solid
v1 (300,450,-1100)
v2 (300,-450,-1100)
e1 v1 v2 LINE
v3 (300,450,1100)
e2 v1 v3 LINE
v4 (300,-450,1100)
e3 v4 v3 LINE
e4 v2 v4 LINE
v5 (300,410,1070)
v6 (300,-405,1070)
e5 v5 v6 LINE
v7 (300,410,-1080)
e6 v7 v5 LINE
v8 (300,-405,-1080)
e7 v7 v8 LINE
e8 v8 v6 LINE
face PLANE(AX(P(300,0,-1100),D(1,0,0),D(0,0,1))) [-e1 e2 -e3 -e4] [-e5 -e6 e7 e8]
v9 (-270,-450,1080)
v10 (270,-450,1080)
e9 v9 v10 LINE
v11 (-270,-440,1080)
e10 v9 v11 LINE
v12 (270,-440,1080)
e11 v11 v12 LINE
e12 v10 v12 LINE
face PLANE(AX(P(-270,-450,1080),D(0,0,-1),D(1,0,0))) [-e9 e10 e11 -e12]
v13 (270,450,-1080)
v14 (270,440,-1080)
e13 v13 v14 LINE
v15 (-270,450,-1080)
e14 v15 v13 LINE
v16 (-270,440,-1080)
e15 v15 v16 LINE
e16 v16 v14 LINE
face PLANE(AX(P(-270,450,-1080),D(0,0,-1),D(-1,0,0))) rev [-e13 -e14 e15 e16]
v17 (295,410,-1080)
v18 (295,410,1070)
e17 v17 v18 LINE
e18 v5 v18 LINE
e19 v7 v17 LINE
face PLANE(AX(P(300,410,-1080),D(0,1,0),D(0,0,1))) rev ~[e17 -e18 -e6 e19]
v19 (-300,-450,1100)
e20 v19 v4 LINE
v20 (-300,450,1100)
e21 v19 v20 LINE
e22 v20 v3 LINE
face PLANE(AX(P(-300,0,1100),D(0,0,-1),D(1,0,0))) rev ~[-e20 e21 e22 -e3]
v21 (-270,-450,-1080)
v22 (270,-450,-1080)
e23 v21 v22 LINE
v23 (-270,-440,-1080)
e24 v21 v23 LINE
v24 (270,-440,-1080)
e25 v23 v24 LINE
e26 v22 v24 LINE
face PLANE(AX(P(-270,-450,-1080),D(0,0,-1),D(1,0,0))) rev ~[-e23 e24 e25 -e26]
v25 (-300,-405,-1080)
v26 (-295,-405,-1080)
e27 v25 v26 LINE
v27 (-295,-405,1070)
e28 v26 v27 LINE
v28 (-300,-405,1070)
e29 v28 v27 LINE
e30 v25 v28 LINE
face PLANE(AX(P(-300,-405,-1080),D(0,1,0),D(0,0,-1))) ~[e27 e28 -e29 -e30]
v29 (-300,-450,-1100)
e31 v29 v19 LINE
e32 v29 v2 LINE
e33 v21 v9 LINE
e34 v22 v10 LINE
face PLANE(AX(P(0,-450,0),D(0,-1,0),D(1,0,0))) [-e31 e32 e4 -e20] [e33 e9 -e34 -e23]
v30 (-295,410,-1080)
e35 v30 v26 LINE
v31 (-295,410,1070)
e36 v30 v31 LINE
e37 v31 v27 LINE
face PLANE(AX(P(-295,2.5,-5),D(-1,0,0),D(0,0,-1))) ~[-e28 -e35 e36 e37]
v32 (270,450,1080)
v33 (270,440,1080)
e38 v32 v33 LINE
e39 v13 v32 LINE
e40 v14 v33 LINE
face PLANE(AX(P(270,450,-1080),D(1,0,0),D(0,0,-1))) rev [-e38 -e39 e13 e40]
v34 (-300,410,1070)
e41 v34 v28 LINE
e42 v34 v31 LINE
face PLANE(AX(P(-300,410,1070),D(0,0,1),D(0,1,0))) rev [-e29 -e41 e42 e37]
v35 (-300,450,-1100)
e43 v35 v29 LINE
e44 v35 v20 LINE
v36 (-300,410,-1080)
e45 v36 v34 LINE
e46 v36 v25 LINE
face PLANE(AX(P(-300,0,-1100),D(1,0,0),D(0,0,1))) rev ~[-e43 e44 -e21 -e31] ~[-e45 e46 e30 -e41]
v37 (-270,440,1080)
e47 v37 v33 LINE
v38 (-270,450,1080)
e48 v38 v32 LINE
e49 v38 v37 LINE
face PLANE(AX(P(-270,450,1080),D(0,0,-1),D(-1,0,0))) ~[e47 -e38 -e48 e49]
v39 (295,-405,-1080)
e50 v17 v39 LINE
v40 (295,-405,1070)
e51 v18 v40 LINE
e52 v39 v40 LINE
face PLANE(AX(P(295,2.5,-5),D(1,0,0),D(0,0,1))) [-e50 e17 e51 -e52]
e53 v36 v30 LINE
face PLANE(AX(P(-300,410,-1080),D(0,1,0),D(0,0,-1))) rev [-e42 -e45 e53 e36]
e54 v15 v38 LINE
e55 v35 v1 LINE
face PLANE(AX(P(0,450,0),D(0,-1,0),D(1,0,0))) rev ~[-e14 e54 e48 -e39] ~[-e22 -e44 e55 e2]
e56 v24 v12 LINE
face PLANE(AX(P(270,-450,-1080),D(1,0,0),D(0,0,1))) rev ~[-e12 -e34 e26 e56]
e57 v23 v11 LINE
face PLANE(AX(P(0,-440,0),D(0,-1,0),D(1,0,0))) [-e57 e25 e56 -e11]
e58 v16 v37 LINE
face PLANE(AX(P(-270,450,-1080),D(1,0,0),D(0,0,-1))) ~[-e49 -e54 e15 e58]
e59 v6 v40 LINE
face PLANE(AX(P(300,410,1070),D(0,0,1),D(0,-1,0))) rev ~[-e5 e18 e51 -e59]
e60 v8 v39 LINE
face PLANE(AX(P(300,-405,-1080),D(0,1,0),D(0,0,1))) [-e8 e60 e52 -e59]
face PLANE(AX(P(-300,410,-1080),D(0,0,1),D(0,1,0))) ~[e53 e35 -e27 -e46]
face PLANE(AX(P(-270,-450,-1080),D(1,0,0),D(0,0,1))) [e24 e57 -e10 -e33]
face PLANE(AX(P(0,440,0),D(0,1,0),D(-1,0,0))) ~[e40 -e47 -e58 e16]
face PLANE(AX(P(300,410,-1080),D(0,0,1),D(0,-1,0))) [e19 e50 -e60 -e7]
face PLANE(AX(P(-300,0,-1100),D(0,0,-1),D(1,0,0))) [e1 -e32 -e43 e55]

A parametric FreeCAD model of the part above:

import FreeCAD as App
import Part
import Sketcher
from FreeCAD import Vector

doc = App.newDocument("Part")
body = doc.addObject("PartDesign::Body", "Body")

sketch1 = body.newObject("Sketcher::SketchObject", "Sketch")
sketch1.AttachmentSupport = (doc.getObject("XZ_Plane"), [""])
sketch1.MapMode = "FlatFace"
sketch1.addGeometry(Part.LineSegment(Vector(-300, 1100, 0), Vector(-300, -1100, 0)), False)
sketch1.addGeometry(Part.LineSegment(Vector(-300, -1100, 0), Vector(300, -1100, 0)), False)
sketch1.addGeometry(Part.LineSegment(Vector(300, -1100, 0), Vector(300, 1100, 0)), False)
sketch1.addGeometry(Part.LineSegment(Vector(300, 1100, 0), Vector(-300, 1100, 0)), False)
sketch1.addConstraint(Sketcher.Constraint("Coincident", 0, 2, 1, 1))
sketch1.addConstraint(Sketcher.Constraint("Coincident", 1, 2, 2, 1))
sketch1.addConstraint(Sketcher.Constraint("Coincident", 2, 2, 3, 1))
sketch1.addConstraint(Sketcher.Constraint("Coincident", 3, 2, 0, 1))
sketch1.addConstraint(Sketcher.Constraint("Vertical", 0))
sketch1.addConstraint(Sketcher.Constraint("Horizontal", 1))
sketch1.addConstraint(Sketcher.Constraint("Vertical", 2))
sketch1.addConstraint(Sketcher.Constraint("Horizontal", 3))
sketch1.addConstraint(Sketcher.Constraint("Symmetric", 0, 2, 2, 2, -1, 1))
sketch1.addConstraint(Sketcher.Constraint("DistanceX", 1, 1, 1, 2, 600.0))
sketch1.addConstraint(Sketcher.Constraint("DistanceY", 0, 2, 0, 1, 2200.0))
pad1 = body.newObject("PartDesign::Pad", "Pad")
pad1.Profile = sketch1
pad1.Length = 900
pad1.Midplane = True

sketch2 = body.newObject("Sketcher::SketchObject", "Sketch001")
sketch2.AttachmentSupport = (doc.getObject("XZ_Plane"), [""])
sketch2.MapMode = "FlatFace"
sketch2.AttachmentOffset = App.Placement(Vector(0, 0, 450), App.Rotation())
sketch2.addGeometry(Part.LineSegment(Vector(-270, 1080, 0), Vector(-270, -1080, 0)), False)
sketch2.addGeometry(Part.LineSegment(Vector(-270, -1080, 0), Vector(270, -1080, 0)), False)
sketch2.addGeometry(Part.LineSegment(Vector(270, -1080, 0), Vector(270, 1080, 0)), False)
sketch2.addGeometry(Part.LineSegment(Vector(270, 1080, 0), Vector(-270, 1080, 0)), False)
sketch2.addConstraint(Sketcher.Constraint("Coincident", 0, 2, 1, 1))
sketch2.addConstraint(Sketcher.Constraint("Coincident", 1, 2, 2, 1))
sketch2.addConstraint(Sketcher.Constraint("Coincident", 2, 2, 3, 1))
sketch2.addConstraint(Sketcher.Constraint("Coincident", 3, 2, 0, 1))
sketch2.addConstraint(Sketcher.Constraint("Vertical", 0))
sketch2.addConstraint(Sketcher.Constraint("Horizontal", 1))
sketch2.addConstraint(Sketcher.Constraint("Vertical", 2))
sketch2.addConstraint(Sketcher.Constraint("Horizontal", 3))
sketch2.addConstraint(Sketcher.Constraint("Symmetric", 0, 2, 2, 2, -1, 1))
sketch2.addConstraint(Sketcher.Constraint("DistanceX", 1, 1, 1, 2, 540.0))
sketch2.addConstraint(Sketcher.Constraint("DistanceY", 0, 2, 0, 1, 2160.0))
pocket1 = body.newObject("PartDesign::Pocket", "Pocket")
pocket1.Profile = sketch2
pocket1.Length = 10
doc.recompute()

mirrored = body.newObject("PartDesign::Mirrored", "Mirrored")
mirrored.Originals = [pocket1]
mirrored.MirrorPlane = (doc.getObject("XZ_Plane"), [""])
body.Tip = mirrored

sketch3 = body.newObject("Sketcher::SketchObject", "Sketch002")
sketch3.AttachmentSupport = (doc.getObject("YZ_Plane"), [""])
sketch3.MapMode = "FlatFace"
sketch3.AttachmentOffset = App.Placement(Vector(0, 0, 300), App.Rotation())
sketch3.addGeometry(Part.LineSegment(Vector(-405, -1080, 0), Vector(410, -1080, 0)), False)
sketch3.addGeometry(Part.LineSegment(Vector(410, -1080, 0), Vector(410, 1070, 0)), False)
sketch3.addGeometry(Part.LineSegment(Vector(410, 1070, 0), Vector(-405, 1070, 0)), False)
sketch3.addGeometry(Part.LineSegment(Vector(-405, 1070, 0), Vector(-405, -1080, 0)), False)
sketch3.addConstraint(Sketcher.Constraint("Coincident", 0, 2, 1, 1))
sketch3.addConstraint(Sketcher.Constraint("Coincident", 1, 2, 2, 1))
sketch3.addConstraint(Sketcher.Constraint("Coincident", 2, 2, 3, 1))
sketch3.addConstraint(Sketcher.Constraint("Coincident", 3, 2, 0, 1))
sketch3.addConstraint(Sketcher.Constraint("Horizontal", 0))
sketch3.addConstraint(Sketcher.Constraint("Vertical", 1))
sketch3.addConstraint(Sketcher.Constraint("Horizontal", 2))
sketch3.addConstraint(Sketcher.Constraint("Vertical", 3))
sketch3.addConstraint(Sketcher.Constraint("DistanceX", 0, 1, 0, 2, 815.0))
sketch3.addConstraint(Sketcher.Constraint("DistanceY", 1, 1, 1, 2, 2150.0))
sketch3.addConstraint(Sketcher.Constraint("DistanceX", -1, 1, 0, 2, 410.0))
sketch3.addConstraint(Sketcher.Constraint("DistanceY", 0, 2, -1, 1, 1080.0))
pocket2 = body.newObject("PartDesign::Pocket", "Pocket001")
pocket2.Profile = sketch3
pocket2.Length = 5
doc.recompute()

mirrored2 = body.newObject("PartDesign::Mirrored", "Mirrored001")
mirrored2.Originals = [pocket2]
mirrored2.MirrorPlane = (doc.getObject("YZ_Plane"), [""])
body.Tip = mirrored2

doc.recompute()
